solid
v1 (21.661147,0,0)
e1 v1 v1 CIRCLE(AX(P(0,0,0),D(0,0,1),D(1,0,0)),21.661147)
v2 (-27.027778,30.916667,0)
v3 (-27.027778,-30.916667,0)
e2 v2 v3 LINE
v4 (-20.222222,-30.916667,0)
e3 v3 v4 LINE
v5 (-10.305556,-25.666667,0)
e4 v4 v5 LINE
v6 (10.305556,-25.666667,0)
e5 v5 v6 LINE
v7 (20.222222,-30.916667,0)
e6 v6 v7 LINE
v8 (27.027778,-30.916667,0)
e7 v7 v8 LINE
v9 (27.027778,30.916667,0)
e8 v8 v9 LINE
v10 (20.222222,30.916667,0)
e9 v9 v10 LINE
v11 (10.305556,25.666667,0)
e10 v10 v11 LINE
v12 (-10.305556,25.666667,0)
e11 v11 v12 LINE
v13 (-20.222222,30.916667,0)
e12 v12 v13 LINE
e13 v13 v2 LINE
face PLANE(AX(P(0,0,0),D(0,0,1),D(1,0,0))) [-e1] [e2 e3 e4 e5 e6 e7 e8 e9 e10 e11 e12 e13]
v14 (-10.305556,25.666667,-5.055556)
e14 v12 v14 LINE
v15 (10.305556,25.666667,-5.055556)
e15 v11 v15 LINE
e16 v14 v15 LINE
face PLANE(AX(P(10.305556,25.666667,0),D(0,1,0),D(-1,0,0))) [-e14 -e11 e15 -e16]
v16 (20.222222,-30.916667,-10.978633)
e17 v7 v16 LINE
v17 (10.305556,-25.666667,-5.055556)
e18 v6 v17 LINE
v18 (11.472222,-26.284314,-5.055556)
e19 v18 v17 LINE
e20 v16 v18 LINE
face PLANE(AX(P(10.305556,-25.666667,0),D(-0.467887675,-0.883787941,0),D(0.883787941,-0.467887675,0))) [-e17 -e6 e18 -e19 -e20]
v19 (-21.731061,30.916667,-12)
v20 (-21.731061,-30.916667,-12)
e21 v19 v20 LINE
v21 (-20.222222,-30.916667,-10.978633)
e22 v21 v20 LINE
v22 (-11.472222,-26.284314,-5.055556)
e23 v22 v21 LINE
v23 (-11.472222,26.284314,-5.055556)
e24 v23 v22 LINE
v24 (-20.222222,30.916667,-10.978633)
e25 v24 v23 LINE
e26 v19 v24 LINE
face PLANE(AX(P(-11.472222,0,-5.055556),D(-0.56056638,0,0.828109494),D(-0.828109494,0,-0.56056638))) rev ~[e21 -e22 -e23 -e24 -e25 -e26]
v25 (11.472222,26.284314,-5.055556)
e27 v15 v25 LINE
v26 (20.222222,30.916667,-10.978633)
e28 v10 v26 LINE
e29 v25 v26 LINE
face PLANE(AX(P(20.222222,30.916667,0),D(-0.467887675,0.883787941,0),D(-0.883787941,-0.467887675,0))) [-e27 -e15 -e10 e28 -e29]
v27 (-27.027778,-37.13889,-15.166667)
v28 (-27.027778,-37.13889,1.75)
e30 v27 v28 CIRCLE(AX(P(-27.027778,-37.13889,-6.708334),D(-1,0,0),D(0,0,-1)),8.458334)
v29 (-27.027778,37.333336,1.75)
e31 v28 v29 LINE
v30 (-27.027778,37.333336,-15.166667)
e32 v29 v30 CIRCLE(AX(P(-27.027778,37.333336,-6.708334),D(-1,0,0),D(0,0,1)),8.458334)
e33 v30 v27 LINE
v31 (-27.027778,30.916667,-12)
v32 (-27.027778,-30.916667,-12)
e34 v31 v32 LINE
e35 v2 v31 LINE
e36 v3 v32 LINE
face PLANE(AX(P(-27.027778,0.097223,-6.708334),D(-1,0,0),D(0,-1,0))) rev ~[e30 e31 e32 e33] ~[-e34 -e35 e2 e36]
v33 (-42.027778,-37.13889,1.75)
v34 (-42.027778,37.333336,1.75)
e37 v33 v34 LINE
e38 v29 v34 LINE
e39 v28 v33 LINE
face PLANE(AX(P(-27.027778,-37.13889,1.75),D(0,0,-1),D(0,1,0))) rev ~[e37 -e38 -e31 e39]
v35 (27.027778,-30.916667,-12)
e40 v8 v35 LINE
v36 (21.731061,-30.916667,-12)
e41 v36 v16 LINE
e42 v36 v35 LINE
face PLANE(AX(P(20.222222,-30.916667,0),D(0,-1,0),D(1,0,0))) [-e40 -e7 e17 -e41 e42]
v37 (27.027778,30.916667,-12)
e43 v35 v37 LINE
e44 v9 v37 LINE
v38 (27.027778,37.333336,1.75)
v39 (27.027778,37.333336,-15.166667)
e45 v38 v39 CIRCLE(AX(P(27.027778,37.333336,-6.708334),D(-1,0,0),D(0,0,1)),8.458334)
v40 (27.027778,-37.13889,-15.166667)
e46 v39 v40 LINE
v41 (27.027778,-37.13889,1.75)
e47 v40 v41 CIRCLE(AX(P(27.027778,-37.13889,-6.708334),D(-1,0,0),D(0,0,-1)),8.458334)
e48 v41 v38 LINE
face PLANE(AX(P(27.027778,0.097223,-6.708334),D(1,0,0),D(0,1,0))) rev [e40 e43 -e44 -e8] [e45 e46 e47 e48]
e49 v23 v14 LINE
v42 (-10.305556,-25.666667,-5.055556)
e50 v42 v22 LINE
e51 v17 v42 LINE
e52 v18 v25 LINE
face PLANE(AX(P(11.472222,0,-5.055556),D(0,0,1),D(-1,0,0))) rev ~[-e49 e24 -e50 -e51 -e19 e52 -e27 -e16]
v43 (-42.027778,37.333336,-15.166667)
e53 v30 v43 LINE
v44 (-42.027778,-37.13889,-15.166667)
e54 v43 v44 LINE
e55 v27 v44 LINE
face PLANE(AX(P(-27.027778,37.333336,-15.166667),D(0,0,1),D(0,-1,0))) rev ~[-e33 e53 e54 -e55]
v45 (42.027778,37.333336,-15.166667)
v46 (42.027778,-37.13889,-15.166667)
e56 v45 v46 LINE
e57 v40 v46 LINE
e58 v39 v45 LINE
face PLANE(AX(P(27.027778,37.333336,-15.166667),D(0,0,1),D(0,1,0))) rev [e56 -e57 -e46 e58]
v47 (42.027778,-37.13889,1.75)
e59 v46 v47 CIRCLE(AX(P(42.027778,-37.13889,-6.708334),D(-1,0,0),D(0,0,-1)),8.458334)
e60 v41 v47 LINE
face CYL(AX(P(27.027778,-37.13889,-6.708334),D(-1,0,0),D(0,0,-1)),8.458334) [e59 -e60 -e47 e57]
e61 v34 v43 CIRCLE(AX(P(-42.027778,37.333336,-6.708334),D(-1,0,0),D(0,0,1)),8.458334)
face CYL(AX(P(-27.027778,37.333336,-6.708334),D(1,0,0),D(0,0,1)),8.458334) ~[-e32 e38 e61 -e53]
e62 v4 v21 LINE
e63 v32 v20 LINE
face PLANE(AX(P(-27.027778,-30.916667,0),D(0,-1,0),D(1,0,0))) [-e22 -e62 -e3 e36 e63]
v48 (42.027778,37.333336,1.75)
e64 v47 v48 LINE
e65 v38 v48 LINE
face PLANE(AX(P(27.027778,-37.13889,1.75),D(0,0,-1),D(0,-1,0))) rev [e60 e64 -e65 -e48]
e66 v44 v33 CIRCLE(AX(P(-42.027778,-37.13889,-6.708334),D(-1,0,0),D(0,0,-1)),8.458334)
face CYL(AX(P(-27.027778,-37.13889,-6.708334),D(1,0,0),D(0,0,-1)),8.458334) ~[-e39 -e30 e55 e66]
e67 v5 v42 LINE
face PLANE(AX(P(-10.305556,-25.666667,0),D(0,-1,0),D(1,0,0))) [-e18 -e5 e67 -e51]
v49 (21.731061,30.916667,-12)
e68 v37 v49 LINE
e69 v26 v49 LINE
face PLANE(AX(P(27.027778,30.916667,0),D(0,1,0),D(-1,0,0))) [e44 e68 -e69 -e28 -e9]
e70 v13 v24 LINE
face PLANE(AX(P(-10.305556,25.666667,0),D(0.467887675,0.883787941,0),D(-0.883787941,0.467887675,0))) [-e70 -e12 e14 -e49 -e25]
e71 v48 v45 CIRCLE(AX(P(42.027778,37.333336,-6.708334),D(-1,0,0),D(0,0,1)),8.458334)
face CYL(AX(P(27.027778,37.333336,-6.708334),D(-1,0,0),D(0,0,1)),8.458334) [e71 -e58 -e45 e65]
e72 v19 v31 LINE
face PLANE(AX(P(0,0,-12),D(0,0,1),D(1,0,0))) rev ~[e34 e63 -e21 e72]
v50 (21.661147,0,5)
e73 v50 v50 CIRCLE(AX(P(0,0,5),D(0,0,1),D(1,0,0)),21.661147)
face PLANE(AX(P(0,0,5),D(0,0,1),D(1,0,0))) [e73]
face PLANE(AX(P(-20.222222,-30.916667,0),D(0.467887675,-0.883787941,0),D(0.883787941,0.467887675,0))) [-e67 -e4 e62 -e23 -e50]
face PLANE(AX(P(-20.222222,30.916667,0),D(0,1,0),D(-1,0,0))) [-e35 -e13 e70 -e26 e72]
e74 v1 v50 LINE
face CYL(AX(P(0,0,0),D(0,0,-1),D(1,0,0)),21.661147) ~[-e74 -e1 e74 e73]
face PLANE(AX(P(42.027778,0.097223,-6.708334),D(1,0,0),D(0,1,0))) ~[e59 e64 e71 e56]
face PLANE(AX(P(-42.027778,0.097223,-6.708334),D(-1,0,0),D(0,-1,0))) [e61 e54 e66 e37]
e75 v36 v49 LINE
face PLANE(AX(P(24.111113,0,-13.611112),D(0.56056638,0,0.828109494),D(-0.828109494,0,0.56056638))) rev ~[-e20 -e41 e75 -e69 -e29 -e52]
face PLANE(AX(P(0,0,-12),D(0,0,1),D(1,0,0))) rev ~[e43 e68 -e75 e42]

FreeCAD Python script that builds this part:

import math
import FreeCAD as App
import Part
import Sketcher

V = App.Vector


def add_polygon(sketch, points):
    """Adds a closed chain of lines whose ends are joined by coincident constraints."""
    first, n = sketch.GeometryCount, len(points)
    for a, b in zip(points, points[1:] + points[:1]):
        sketch.addGeometry(Part.LineSegment(App.Vector(*a, 0), App.Vector(*b, 0)), False)
    for i in range(n):
        sketch.addConstraint(Sketcher.Constraint("Coincident", first + i, 2, first + (i + 1) % n, 1))

doc = App.newDocument("Part")
body = doc.addObject("PartDesign::Body", "Body")

sketch1 = body.newObject("Sketcher::SketchObject", "Sketch")
sketch1.AttachmentSupport = (doc.getObject("XY_Plane"), [""])
sketch1.MapMode = "FlatFace"
add_polygon(sketch1, [(-20, 31), (-27, 31), (-27, -31), (-20, -31), (-10, -26), (10, -26), (20, -31), (27, -31), (27, 31), (20, 31), (10, 26), (-10, 26)])
sketch1.addConstraint([
    Sketcher.Constraint("Horizontal", 0),
    Sketcher.Constraint("Vertical", 1),
    Sketcher.Constraint("Horizontal", 2),
    Sketcher.Constraint("Horizontal", 4),
    Sketcher.Constraint("Horizontal", 6),
    Sketcher.Constraint("Vertical", 7),
    Sketcher.Constraint("Horizontal", 8),
    Sketcher.Constraint("Horizontal", 10),
    Sketcher.Constraint("Symmetric", 0, 2, 6, 2, -1, 1),
    Sketcher.Constraint("Symmetric", 2, 2, 8, 2, -1, 1),
    Sketcher.Constraint("Symmetric", 3, 2, 9, 2, -1, 1),
    Sketcher.Constraint("Symmetric", 2, 2, 5, 2, -2),
    Sketcher.Constraint("Parallel", 5, 11),
    Sketcher.Constraint("Vertical", 4, 2, 9, 2),
    Sketcher.Constraint("Vertical", 3, 2, 10, 2),
    Sketcher.Constraint("DistanceY", 2, 2, 3, 2, 5.249999),
    Sketcher.Constraint("DistanceX", 1, 2, 5, 2, 47.250001),
    Sketcher.Constraint("DistanceX", 4, 1, 4, 2, 20.611111),
    Sketcher.Constraint("Distance", 3, 11.220641),
    Sketcher.Constraint("DistanceY", 1, 2, 1, 1, 61.833333),
])
pad1 = body.newObject("PartDesign::Pad", "Pad")
pad1.Profile = sketch1
pad1.Length = 12
pad1.Reversed = True

sketch2 = body.newObject("Sketcher::SketchObject", "Sketch001")
sketch2.AttachmentSupport = (doc.getObject("YZ_Plane"), [""])
sketch2.MapMode = "FlatFace"
sketch2.AttachmentOffset = App.Placement(V(0, 0, -27.027778), App.Rotation())
sketch2.addGeometry([
    Part.ArcOfCircle(Part.Circle(V(37, -7, 0), V(0, 0, 1), 8), math.radians(-90), math.radians(90)),
    Part.LineSegment(V(37, -15, 0), V(-37, -15, 0)),
    Part.ArcOfCircle(Part.Circle(V(-37, -7, 0), V(0, 0, 1), 8), math.radians(90), math.radians(270)),
    Part.LineSegment(V(-37, 2, 0), V(37, 2, 0)),
], False)
sketch2.addConstraint([
    Sketcher.Constraint("Tangent", 0, 1, 1, 1),
    Sketcher.Constraint("Tangent", 1, 2, 2, 2),
    Sketcher.Constraint("Tangent", 2, 1, 3, 1),
    Sketcher.Constraint("Tangent", 3, 2, 0, 2),
    Sketcher.Constraint("Horizontal", 1),
    Sketcher.Constraint("Horizontal", 3),
    Sketcher.Constraint("DistanceY", -1, 1, 2, 1, 1.75),
    Sketcher.Constraint("Radius", 0, 8.458334),
    Sketcher.Constraint("DistanceX", 1, 2, 1, 1, 74.472226),
    Sketcher.Constraint("DistanceX", 2, 3, -1, 1, 37.13889),
])
pad2 = body.newObject("PartDesign::Pad", "Pad001")
pad2.Profile = sketch2
pad2.Length = 15
pad2.Reversed = True
body2 = doc.addObject("PartDesign::Body", "Body001")
doc.recompute()

body2.BaseFeature = body
doc.recompute()

mirroring = doc.addObject("Part::Mirroring", "Mirroring")
mirroring.Source = body
mirroring.Base = V(0, 0, 0)
mirroring.Normal = V(1, 0, 0)
body3 = doc.addObject("PartDesign::Body", "Body002")
body3.BaseFeature = mirroring
boolean = body2.newObject("PartDesign::Boolean", "Boolean")
boolean.Type = "Fuse"
boolean.addObjects([body3])
doc.recompute()

sketch3 = body2.newObject("Sketcher::SketchObject", "Sketch002")
sketch3.AttachmentSupport = (doc.getObject("XZ_Plane001"), [""])
sketch3.MapMode = "FlatFace"
add_polygon(sketch3, [(11, -5), (-11, -5), (-24, -14), (24, -14)])
sketch3.addConstraint([
    Sketcher.Constraint("Horizontal", 0),
    Sketcher.Constraint("Horizontal", 2),
    Sketcher.Constraint("Equal", 1, 3),
    Sketcher.Constraint("Distance", 1, 15.262342),
    Sketcher.Constraint("DistanceX", 0, 2, 0, 1, 22.944445),
    Sketcher.Constraint("DistanceX", 2, 1, 2, 2, 48.222225),
    Sketcher.Constraint("DistanceY", 1, 2, -1, 1, 13.611112),
    Sketcher.Constraint("DistanceX", 0, 2, -1, 1, 11.472222),
])
pocket1 = body2.newObject("PartDesign::Pocket", "Pocket")
pocket1.Profile = sketch3
pocket1.Length = 65.8
pocket1.Midplane = True

sketch4 = body2.newObject("Sketcher::SketchObject", "Sketch003")
sketch4.AttachmentSupport = (doc.getObject("XY_Plane001"), [""])
sketch4.MapMode = "FlatFace"
sketch4.addGeometry(Part.Circle(V(0, 0, 0), V(0, 0, 1), 22), False)
sketch4.addConstraint([
    Sketcher.Constraint("Coincident", 0, 3, -1, 1),
    Sketcher.Constraint("Diameter", 0, 43.322294),
])
pad3 = body2.newObject("PartDesign::Pad", "Pad002")
pad3.Profile = sketch4
pad3.Length = 5
mirroring.Visibility = False

doc.recompute()
